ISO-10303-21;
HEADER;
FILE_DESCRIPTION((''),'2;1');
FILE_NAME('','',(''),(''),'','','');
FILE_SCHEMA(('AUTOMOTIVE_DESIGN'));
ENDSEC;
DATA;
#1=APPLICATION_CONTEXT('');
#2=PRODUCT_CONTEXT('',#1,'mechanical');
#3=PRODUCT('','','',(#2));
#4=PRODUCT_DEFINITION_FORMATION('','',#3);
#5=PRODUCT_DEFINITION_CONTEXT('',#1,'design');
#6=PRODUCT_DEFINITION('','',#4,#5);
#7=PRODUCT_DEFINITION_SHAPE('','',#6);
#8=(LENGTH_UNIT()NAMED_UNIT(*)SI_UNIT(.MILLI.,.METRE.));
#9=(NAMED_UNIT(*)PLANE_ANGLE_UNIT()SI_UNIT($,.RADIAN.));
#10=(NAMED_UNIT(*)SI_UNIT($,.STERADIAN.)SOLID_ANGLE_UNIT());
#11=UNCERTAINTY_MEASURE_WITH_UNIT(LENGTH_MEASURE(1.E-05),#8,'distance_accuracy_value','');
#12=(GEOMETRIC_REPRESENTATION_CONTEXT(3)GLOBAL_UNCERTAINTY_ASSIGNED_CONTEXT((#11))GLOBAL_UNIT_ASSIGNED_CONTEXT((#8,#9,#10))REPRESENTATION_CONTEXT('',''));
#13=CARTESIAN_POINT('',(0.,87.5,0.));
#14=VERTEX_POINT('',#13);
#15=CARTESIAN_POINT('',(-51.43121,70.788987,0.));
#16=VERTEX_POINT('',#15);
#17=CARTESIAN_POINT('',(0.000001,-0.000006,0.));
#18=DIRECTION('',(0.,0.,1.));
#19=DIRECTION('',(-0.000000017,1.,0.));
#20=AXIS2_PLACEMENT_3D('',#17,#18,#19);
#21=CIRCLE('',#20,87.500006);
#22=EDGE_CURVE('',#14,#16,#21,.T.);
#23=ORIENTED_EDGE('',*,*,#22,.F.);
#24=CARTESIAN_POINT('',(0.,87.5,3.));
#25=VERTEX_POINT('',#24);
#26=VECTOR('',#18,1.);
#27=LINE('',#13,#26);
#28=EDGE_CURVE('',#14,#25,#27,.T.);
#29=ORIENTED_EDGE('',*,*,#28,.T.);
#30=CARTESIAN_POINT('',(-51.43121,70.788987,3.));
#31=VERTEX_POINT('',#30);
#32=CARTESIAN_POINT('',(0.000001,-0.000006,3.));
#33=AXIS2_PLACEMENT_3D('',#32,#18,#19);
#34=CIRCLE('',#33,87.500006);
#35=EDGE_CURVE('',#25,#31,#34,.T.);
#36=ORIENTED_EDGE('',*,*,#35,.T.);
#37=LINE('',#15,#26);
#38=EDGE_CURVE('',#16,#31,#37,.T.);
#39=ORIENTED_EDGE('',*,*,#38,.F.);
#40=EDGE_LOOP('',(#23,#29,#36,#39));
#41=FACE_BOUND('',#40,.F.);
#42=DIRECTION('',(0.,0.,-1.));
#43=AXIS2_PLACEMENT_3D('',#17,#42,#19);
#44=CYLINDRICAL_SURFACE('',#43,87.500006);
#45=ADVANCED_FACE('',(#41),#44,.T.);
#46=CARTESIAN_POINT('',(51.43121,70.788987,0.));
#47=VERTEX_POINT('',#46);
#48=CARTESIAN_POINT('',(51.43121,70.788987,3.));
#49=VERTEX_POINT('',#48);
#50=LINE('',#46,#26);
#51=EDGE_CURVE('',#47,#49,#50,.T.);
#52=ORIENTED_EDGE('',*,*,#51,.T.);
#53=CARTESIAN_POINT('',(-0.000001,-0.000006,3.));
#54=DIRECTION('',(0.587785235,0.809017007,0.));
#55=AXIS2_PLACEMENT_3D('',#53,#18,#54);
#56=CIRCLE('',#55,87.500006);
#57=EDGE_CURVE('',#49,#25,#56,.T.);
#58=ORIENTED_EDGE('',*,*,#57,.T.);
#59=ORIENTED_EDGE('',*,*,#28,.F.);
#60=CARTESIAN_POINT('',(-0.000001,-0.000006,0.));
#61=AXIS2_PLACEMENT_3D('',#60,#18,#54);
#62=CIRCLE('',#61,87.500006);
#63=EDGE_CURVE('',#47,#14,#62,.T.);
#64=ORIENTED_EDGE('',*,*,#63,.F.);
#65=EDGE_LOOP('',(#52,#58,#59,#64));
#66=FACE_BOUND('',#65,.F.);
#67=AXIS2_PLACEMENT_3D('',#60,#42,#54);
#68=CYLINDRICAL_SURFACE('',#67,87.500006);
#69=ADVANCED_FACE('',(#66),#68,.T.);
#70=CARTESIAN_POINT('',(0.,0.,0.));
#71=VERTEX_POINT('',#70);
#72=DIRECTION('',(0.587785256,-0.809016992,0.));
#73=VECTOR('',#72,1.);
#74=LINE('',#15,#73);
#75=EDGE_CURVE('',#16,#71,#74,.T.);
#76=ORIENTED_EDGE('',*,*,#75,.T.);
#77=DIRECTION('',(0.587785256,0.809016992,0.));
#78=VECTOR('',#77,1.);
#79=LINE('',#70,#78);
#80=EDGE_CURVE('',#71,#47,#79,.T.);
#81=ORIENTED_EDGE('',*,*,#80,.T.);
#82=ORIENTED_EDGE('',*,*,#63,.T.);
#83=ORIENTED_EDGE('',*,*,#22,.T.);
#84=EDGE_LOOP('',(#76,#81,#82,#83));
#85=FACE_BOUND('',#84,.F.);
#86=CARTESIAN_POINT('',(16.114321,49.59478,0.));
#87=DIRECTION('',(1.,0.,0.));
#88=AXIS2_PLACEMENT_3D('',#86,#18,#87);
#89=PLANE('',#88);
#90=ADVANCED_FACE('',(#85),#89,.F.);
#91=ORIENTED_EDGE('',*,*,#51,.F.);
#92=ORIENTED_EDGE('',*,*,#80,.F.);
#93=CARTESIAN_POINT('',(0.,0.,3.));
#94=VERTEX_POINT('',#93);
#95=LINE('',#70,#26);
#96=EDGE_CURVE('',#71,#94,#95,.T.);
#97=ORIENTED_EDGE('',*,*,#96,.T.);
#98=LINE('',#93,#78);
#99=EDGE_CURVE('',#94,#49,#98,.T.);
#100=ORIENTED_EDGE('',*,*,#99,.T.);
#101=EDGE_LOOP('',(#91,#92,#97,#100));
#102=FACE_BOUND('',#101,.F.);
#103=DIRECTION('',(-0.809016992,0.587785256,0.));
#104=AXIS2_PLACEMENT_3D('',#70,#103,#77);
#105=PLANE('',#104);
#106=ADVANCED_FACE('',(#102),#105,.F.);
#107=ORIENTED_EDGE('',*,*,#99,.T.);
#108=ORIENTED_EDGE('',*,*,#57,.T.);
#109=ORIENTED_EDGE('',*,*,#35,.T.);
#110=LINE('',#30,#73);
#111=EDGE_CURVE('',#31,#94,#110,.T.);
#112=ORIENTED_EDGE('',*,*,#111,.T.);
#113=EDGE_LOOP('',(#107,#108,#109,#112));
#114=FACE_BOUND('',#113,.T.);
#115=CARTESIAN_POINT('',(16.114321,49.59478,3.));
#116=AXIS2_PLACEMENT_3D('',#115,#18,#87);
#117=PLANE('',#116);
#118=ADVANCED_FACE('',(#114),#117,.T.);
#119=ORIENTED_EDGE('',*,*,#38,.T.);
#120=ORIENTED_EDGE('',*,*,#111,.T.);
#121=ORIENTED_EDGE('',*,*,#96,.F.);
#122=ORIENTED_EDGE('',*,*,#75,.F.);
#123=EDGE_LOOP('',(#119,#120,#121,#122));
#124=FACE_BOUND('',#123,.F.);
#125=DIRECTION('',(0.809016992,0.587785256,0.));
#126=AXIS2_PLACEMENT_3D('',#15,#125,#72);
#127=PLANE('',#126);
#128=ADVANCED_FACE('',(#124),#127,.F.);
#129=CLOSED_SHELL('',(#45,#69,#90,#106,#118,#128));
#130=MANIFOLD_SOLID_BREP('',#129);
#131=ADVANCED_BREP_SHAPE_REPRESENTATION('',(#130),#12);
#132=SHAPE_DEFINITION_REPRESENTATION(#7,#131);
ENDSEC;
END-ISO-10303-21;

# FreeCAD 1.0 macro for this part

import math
import FreeCAD as App
import Part
import Sketcher
Q = App.Units.Quantity

doc = App.newDocument("Part")
body = doc.addObject("PartDesign::Body", "Body")

sketch1 = body.newObject("Sketcher::SketchObject", "Sketch")
sketch1.AttachmentSupport = (doc.getObject("XY_Plane"), [""])
sketch1.MapMode = "FlatFace"
sketch1.addGeometry([
    Part.LineSegment(App.Vector(0, 0, 0), App.Vector(51, 71, 0)),
    Part.ArcOfCircle(Part.Circle(App.Vector(0, 0, 0), App.Vector(0, 0, 1), 88), math.radians(54), math.radians(90)),
    Part.ArcOfCircle(Part.Circle(App.Vector(0, 0, 0), App.Vector(0, 0, 1), 88), math.radians(90), math.radians(126)),
    Part.LineSegment(App.Vector(-51, 71, 0), App.Vector(0, 0, 0)),
], False)
sketch1.addConstraint([
    Sketcher.Constraint("Coincident", 0, 2, 1, 1),
    Sketcher.Constraint("Tangent", 1, 2, 2, 1),
    Sketcher.Constraint("Coincident", 2, 2, 3, 1),
    Sketcher.Constraint("Coincident", 3, 2, 0, 1),
    Sketcher.Constraint("Coincident", 1, 3, -1, 1),
    Sketcher.Constraint("Coincident", 3, 2, -1, 1),
    Sketcher.Constraint("Equal", 1, 2),
    Sketcher.Constraint("PointOnObject", 1, 2, -2),
    Sketcher.Constraint("Horizontal", 0, 2, 2, 2),
    Sketcher.Constraint("Angle", 0, Q("54 deg")),
    Sketcher.Constraint("Distance", 0, 87.5),
])
pad1 = body.newObject("PartDesign::Pad", "Pad")
pad1.Profile = sketch1
pad1.Length = 3

doc.recompute()
